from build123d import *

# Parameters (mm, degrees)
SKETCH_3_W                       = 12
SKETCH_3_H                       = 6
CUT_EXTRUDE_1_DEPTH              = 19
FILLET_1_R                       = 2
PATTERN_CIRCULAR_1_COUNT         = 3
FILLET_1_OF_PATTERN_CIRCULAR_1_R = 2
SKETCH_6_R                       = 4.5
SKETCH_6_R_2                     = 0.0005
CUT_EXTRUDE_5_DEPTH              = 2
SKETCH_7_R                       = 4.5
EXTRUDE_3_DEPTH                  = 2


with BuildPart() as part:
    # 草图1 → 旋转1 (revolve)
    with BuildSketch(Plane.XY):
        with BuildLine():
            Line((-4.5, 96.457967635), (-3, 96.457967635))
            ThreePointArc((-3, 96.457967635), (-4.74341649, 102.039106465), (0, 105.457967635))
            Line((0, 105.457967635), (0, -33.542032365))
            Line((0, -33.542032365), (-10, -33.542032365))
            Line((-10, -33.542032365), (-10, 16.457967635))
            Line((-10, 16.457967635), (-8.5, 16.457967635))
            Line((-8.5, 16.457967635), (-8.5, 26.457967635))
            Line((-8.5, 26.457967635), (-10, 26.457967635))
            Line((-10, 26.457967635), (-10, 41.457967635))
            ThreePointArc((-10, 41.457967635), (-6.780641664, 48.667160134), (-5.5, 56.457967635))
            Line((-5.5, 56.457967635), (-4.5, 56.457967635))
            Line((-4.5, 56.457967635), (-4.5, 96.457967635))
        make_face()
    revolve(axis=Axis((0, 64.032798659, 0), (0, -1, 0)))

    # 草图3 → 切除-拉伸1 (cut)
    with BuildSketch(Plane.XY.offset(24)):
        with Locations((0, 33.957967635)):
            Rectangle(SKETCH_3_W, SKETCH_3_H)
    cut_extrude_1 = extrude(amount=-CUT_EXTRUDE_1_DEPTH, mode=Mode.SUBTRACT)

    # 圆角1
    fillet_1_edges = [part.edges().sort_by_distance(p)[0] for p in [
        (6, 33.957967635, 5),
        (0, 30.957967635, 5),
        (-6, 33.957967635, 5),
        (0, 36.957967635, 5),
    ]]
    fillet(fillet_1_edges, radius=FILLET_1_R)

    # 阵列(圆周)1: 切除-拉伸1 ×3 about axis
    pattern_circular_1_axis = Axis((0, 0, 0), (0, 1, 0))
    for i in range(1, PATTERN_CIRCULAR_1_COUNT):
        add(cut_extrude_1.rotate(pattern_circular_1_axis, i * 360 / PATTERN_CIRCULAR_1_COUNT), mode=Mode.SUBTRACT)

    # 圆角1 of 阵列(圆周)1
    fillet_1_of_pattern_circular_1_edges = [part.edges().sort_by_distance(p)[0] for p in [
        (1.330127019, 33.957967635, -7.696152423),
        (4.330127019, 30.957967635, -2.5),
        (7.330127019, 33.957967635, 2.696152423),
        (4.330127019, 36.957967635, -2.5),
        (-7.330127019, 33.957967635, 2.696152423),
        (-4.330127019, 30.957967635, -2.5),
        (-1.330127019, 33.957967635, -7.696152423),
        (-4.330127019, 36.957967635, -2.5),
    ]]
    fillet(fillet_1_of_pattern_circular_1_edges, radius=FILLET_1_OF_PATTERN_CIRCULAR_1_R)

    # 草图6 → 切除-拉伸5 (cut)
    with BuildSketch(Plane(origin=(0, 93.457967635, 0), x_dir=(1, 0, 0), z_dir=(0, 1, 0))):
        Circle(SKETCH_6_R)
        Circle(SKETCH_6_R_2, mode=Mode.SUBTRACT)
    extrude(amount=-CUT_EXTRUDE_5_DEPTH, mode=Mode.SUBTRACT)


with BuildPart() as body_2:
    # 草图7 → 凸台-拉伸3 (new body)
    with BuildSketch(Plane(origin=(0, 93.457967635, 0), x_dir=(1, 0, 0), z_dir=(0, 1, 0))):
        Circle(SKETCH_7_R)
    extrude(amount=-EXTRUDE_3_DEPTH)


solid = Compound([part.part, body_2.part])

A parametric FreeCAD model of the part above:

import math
import FreeCAD as App
import Part
import Sketcher

V = App.Vector
Q = App.Units.Quantity


def edges_at(feature, points):
    """Names of the edges that pass closest to the given points."""
    edges = feature.Shape.Edges
    near = lambda p: min(range(len(edges)), key=lambda i: edges[i].distToShape(Part.Vertex(*p))[0])
    return sorted({f"Edge{near(p) + 1}" for p in points})

doc = App.newDocument("Part")
params = doc.addObject("Spreadsheet::Sheet", "Params")
for row, (alias, value) in enumerate([
    ("sketch1_radius", "5 mm"),
    ("sketch1_width", "1 mm"),
    ("sketch1_width2", "10 mm"),
    ("sketch1_height", "40 mm"),
    ("sketch1_height2", "15 mm"),
    ("revolution_angle", "360 deg"),
    ("sketch2_width", "12 mm"),
    ("sketch2_height", "6 mm"),
    ("pocket1_length", "19 mm"),
    ("fillet_radius", "2 mm"),
    ("fillet2_radius", "2 mm"),
    ("sketch3_diameter", "9 mm"),
    ("pocket2_length", "2 mm"),
    ("sketch4_diameter", "9 mm"),
    ("pad1_length", "2 mm"),
], start=1):
    params.set(f"A{row}", alias)
    params.set(f"B{row}", "=" + value)
    params.setAlias(f"B{row}", alias)

body = doc.addObject("PartDesign::Body", "Body")

sketch1 = body.newObject("Sketcher::SketchObject", "Sketch")
sketch1.AttachmentSupport = (doc.getObject("XY_Plane"), [""])
sketch1.MapMode = "FlatFace"
sketch1.addGeometry([
    Part.LineSegment(V(-3, 96.457968, 0), V(-4.5, 96.457968, 0)),
    Part.LineSegment(V(-4.5, 96.457968, 0), V(-4.5, 56.457968, 0)),
    Part.LineSegment(V(-4.5, 56.457968, 0), V(-5.5, 56.457968, 0)),
    Part.ArcOfCircle(Part.Circle(V(-36.279359, 57.516775, 0), V(0, 0, 1), 30.797565), math.radians(-31.428295), math.radians(-1.970194)),
    Part.LineSegment(V(-10, 41.457968, 0), V(-10, 26.457968, 0)),
    Part.LineSegment(V(-10, 26.457968, 0), V(-8.5, 26.457968, 0)),
    Part.LineSegment(V(-8.5, 26.457968, 0), V(-8.5, 16.457968, 0)),
    Part.LineSegment(V(-8.5, 16.457968, 0), V(-10, 16.457968, 0)),
    Part.LineSegment(V(-10, 16.457968, 0), V(-10, -33.542032, 0)),
    Part.LineSegment(V(-10, -33.542032, 0), V(0, -33.542032, 0)),
    Part.LineSegment(V(0, -33.542032, 0), V(0, 105.457968, 0)),
    Part.ArcOfCircle(Part.Circle(V(0, 100.457968, 0), V(0, 0, 1), 5), math.radians(90), math.radians(233.130102)),
], False)
sketch1.addConstraint([
    Sketcher.Constraint("Coincident", 0, 2, 1, 1),
    Sketcher.Constraint("Coincident", 1, 2, 2, 1),
    Sketcher.Constraint("Coincident", 2, 2, 3, 2),
    Sketcher.Constraint("Coincident", 3, 1, 4, 1),
    Sketcher.Constraint("Coincident", 4, 2, 5, 1),
    Sketcher.Constraint("Coincident", 5, 2, 6, 1),
    Sketcher.Constraint("Coincident", 6, 2, 7, 1),
    Sketcher.Constraint("Coincident", 7, 2, 8, 1),
    Sketcher.Constraint("Coincident", 8, 2, 9, 1),
    Sketcher.Constraint("Coincident", 9, 2, 10, 1),
    Sketcher.Constraint("Coincident", 10, 2, 11, 1),
    Sketcher.Constraint("Coincident", 11, 2, 0, 1),
    Sketcher.Constraint("Horizontal", 0),
    Sketcher.Constraint("Vertical", 1),
    Sketcher.Constraint("Horizontal", 2),
    Sketcher.Constraint("Vertical", 4),
    Sketcher.Constraint("Horizontal", 5),
    Sketcher.Constraint("Vertical", 6),
    Sketcher.Constraint("Horizontal", 7),
    Sketcher.Constraint("Vertical", 8),
    Sketcher.Constraint("Horizontal", 9),
    Sketcher.Constraint("Vertical", 10),
    Sketcher.Constraint("PointOnObject", 11, 3, -2),
    Sketcher.Constraint("PointOnObject", 9, 2, -2),
    Sketcher.Constraint("Vertical", 4, 2, 7, 2),
    Sketcher.Constraint("Equal", 0, 5),
    Sketcher.Constraint("Equal", 9, 6),
    Sketcher.Constraint("Radius", 11, Q("5 mm")),
    Sketcher.Constraint("DistanceX", 2, 2, 2, 1, Q("1 mm")),
    Sketcher.Constraint("DistanceX", 9, 1, 9, 2, Q("10 mm")),
    Sketcher.Constraint("DistanceY", 1, 2, 1, 1, Q("40 mm")),
    Sketcher.Constraint("DistanceY", 4, 2, 4, 1, Q("15 mm")),
    Sketcher.Constraint("DistanceY", 8, 2, 8, 1, Q("50 mm")),
    Sketcher.Constraint("DistanceY", 10, 1, 10, 2, Q("139 mm")),
    Sketcher.Constraint("DistanceX", 0, 2, 0, 1, Q("1.5 mm")),
    Sketcher.Constraint("DistanceX", 11, 2, -1, 1, Q("3 mm")),
    Sketcher.Constraint("Radius", 3, Q("30.797565 mm")),
    Sketcher.Constraint("DistanceY", -1, 1, 3, 3, Q("57.516775 mm")),
])
sketch1.setExpression("Constraints[27]", "Params.sketch1_radius")
sketch1.setExpression("Constraints[28]", "Params.sketch1_width")
sketch1.setExpression("Constraints[29]", "Params.sketch1_width2")
sketch1.setExpression("Constraints[30]", "Params.sketch1_height")
sketch1.setExpression("Constraints[31]", "Params.sketch1_height2")
revolution = body.newObject("PartDesign::Revolution", "Revolution")
revolution.Profile = sketch1
revolution.ReferenceAxis = (sketch1, ["V_Axis"])
revolution.setExpression("Angle", "Params.revolution_angle")

sketch2 = body.newObject("Sketcher::SketchObject", "Sketch001")
sketch2.AttachmentSupport = (doc.getObject("XY_Plane"), [""])
sketch2.MapMode = "FlatFace"
sketch2.AttachmentOffset = App.Placement(V(0, 0, 24), App.Rotation())
sketch2.addGeometry([
    Part.LineSegment(V(-6, 36.957968, 0), V(-6, 30.957968, 0)),
    Part.LineSegment(V(-6, 30.957968, 0), V(6, 30.957968, 0)),
    Part.LineSegment(V(6, 30.957968, 0), V(6, 36.957968, 0)),
    Part.LineSegment(V(6, 36.957968, 0), V(-6, 36.957968, 0)),
], False)
sketch2.addConstraint([
    Sketcher.Constraint("Coincident", 0, 2, 1, 1),
    Sketcher.Constraint("Coincident", 1, 2, 2, 1),
    Sketcher.Constraint("Coincident", 2, 2, 3, 1),
    Sketcher.Constraint("Coincident", 3, 2, 0, 1),
    Sketcher.Constraint("Vertical", 0),
    Sketcher.Constraint("Horizontal", 1),
    Sketcher.Constraint("Vertical", 2),
    Sketcher.Constraint("Horizontal", 3),
    Sketcher.Constraint("DistanceX", 1, 1, 1, 2, Q("12 mm")),
    Sketcher.Constraint("DistanceY", 0, 2, 0, 1, Q("6 mm")),
    Sketcher.Constraint("DistanceX", 0, 2, -1, 1, Q("6 mm")),
    Sketcher.Constraint("DistanceY", -1, 1, 0, 2, Q("30.957968 mm")),
])
sketch2.setExpression("Constraints[8]", "Params.sketch2_width")
sketch2.setExpression("Constraints[9]", "Params.sketch2_height")
pocket1 = body.newObject("PartDesign::Pocket", "Pocket")
pocket1.Profile = sketch2
pocket1.setExpression("Length", "Params.pocket1_length")
doc.recompute()

fillet = body.newObject("PartDesign::Fillet", "Fillet")
fillet.Base = (pocket1, edges_at(pocket1, [
    (6, 33.958, 5),
    (0, 30.958, 5),
    (-6, 33.958, 5),
    (0, 36.958, 5),
]))
fillet.setExpression("Radius", "Params.fillet_radius")
doc.recompute()

polarpattern = body.newObject("PartDesign::PolarPattern", "PolarPattern")
polarpattern.Originals = [pocket1]
polarpattern.Axis = (doc.getObject("Y_Axis"), [""])
polarpattern.Angle = 360
polarpattern.Occurrences = 3
body.Tip = polarpattern
doc.recompute()

fillet2 = body.newObject("PartDesign::Fillet", "Fillet001")
fillet2.Base = (polarpattern, edges_at(polarpattern, [
    (1.33, 33.958, -7.696),
    (4.33, 30.958, -2.5),
    (7.33, 33.958, 2.696),
    (4.33, 36.958, -2.5),
    (-7.33, 33.958, 2.696),
    (-4.33, 30.958, -2.5),
    (-1.33, 33.958, -7.696),
    (-4.33, 36.958, -2.5),
]))
fillet2.setExpression("Radius", "Params.fillet2_radius")

sketch3 = body.newObject("Sketcher::SketchObject", "Sketch002")
sketch3.AttachmentSupport = (doc.getObject("XZ_Plane"), [""])
sketch3.MapMode = "FlatFace"
sketch3.AttachmentOffset = App.Placement(V(0, 0, -93.457968), App.Rotation())
sketch3.addGeometry([
    Part.Circle(V(0, 0, 0), V(0, 0, 1), 4.5),
    Part.Circle(V(0, 0, 0), V(0, 0, 1), 0.0005),
], False)
sketch3.addConstraint([
    Sketcher.Constraint("Coincident", 0, 3, -1, 1),
    Sketcher.Constraint("Coincident", 1, 3, -1, 1),
    Sketcher.Constraint("Diameter", 0, Q("9 mm")),
    Sketcher.Constraint("Diameter", 1, Q("0.001 mm")),
])
sketch3.setExpression("Constraints[2]", "Params.sketch3_diameter")
pocket2 = body.newObject("PartDesign::Pocket", "Pocket001")
pocket2.Profile = sketch3
pocket2.setExpression("Length", "Params.pocket2_length")
pocket2.Reversed = True
body2 = doc.addObject("PartDesign::Body", "Body001")

sketch4 = body2.newObject("Sketcher::SketchObject", "Sketch003")
sketch4.AttachmentSupport = (doc.getObject("XZ_Plane001"), [""])
sketch4.MapMode = "FlatFace"
sketch4.AttachmentOffset = App.Placement(V(0, 0, -93.457968), App.Rotation())
sketch4.addGeometry(Part.Circle(V(0, 0, 0), V(0, 0, 1), 4.5), False)
sketch4.addConstraint([
    Sketcher.Constraint("Coincident", 0, 3, -1, 1),
    Sketcher.Constraint("Diameter", 0, Q("9 mm")),
])
sketch4.setExpression("Constraints[1]", "Params.sketch4_diameter")
pad1 = body2.newObject("PartDesign::Pad", "Pad")
pad1.Profile = sketch4
pad1.setExpression("Length", "Params.pad1_length")

doc.recompute()
